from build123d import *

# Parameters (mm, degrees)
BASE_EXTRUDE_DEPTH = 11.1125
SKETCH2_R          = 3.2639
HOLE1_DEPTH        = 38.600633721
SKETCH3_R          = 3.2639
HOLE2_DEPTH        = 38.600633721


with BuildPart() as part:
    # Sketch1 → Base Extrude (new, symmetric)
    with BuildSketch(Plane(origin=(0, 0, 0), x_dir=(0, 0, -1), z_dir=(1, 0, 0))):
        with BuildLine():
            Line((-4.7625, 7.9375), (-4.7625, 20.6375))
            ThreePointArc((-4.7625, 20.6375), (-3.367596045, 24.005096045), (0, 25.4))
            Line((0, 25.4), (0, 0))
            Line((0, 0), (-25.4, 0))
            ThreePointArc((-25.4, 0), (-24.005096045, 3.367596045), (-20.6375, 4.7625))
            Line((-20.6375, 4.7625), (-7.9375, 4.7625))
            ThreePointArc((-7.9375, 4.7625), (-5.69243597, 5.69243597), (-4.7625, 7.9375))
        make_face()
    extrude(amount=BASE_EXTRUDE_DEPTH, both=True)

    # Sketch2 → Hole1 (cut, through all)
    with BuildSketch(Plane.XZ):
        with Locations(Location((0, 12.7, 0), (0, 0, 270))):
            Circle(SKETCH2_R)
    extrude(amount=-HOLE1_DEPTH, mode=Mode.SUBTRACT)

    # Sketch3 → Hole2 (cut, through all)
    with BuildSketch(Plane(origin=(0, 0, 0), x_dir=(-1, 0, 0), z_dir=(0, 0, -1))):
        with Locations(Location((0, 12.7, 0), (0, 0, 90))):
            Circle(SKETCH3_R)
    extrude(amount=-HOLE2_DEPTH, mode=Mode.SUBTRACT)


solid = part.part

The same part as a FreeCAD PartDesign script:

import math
import FreeCAD as App
import Part
import Sketcher
from FreeCAD import Vector
Q = App.Units.Quantity

doc = App.newDocument("Part")
body = doc.addObject("PartDesign::Body", "Body")

sketch1 = body.newObject("Sketcher::SketchObject", "Sketch")
sketch1.AttachmentSupport = (doc.getObject("YZ_Plane"), [""])
sketch1.MapMode = "FlatFace"
sketch1.addGeometry([
    Part.LineSegment(Vector(20.6375, 4.7625, 0), Vector(7.9375, 4.7625, 0)),
    Part.ArcOfCircle(Part.Circle(Vector(7.9375, 7.9375, 0), Vector(0, 0, 1), 3.175), math.radians(-180), math.radians(-90)),
    Part.LineSegment(Vector(4.7625, 7.9375, 0), Vector(4.7625, 20.6375, 0)),
    Part.ArcOfCircle(Part.Circle(Vector(0, 20.6375, 0), Vector(0, 0, 1), 4.7625), math.radians(0), math.radians(90)),
    Part.LineSegment(Vector(0, 25.4, 0), Vector(0, 0, 0)),
    Part.LineSegment(Vector(0, 0, 0), Vector(25.4, 0, 0)),
    Part.ArcOfCircle(Part.Circle(Vector(20.6375, 0, 0), Vector(0, 0, 1), 4.7625), math.radians(0), math.radians(90)),
], False)
sketch1.addConstraint([
    Sketcher.Constraint("Tangent", 0, 2, 1, 2),
    Sketcher.Constraint("Tangent", 1, 1, 2, 1),
    Sketcher.Constraint("Tangent", 2, 2, 3, 1),
    Sketcher.Constraint("Coincident", 3, 2, 4, 1),
    Sketcher.Constraint("Coincident", 4, 2, 5, 1),
    Sketcher.Constraint("Coincident", 5, 2, 6, 1),
    Sketcher.Constraint("Tangent", 6, 2, 0, 1),
    Sketcher.Constraint("Horizontal", 0),
    Sketcher.Constraint("Vertical", 2),
    Sketcher.Constraint("Vertical", 4),
    Sketcher.Constraint("Horizontal", 5),
    Sketcher.Constraint("Coincident", 4, 2, -1, 1),
    Sketcher.Constraint("Equal", 3, 6),
    Sketcher.Constraint("PointOnObject", 3, 3, -2),
    Sketcher.Constraint("PointOnObject", 6, 3, -1),
    Sketcher.Constraint("Equal", 0, 2),
    Sketcher.Constraint("DistanceX", 5, 1, 5, 2, Q("1 in")),
    Sketcher.Constraint("DistanceX", 0, 2, 0, 1, Q("0.5 in")),
    Sketcher.Constraint("Radius", 1, Q("0.125 in")),
])
pad1 = body.newObject("PartDesign::Pad", "Pad")
pad1.Profile = sketch1
pad1.Length = Q("0.875 in")
pad1.Midplane = True

sketch2 = body.newObject("Sketcher::SketchObject", "Sketch001")
sketch2.AttachmentSupport = (doc.getObject("XZ_Plane"), [""])
sketch2.MapMode = "FlatFace"
sketch2.addGeometry(Part.Circle(Vector(0, 12.7, 0), Vector(0, 0, 1), 3.2639), False)
sketch2.addConstraint([
    Sketcher.Constraint("PointOnObject", 0, 3, -2),
    Sketcher.Constraint("Diameter", 0, Q("0.257 in")),
    Sketcher.Constraint("DistanceY", -1, 1, 0, 3, Q("0.5 in")),
])
pocket1 = body.newObject("PartDesign::Pocket", "Pocket")
pocket1.Profile = sketch2
pocket1.Type = "ThroughAll"

sketch3 = body.newObject("Sketcher::SketchObject", "Sketch002")
sketch3.AttachmentSupport = (doc.getObject("XY_Plane"), [""])
sketch3.MapMode = "FlatFace"
sketch3.addGeometry(Part.Circle(Vector(0, 12.7, 0), Vector(0, 0, 1), 3.2639), False)
sketch3.addConstraint([
    Sketcher.Constraint("PointOnObject", 0, 3, -2),
    Sketcher.Constraint("Diameter", 0, Q("0.257 in")),
    Sketcher.Constraint("DistanceY", -1, 1, 0, 3, Q("0.5 in")),
])
pocket2 = body.newObject("PartDesign::Pocket", "Pocket001")
pocket2.Profile = sketch3
pocket2.Type = "ThroughAll"
pocket2.Reversed = True

doc.recompute()
